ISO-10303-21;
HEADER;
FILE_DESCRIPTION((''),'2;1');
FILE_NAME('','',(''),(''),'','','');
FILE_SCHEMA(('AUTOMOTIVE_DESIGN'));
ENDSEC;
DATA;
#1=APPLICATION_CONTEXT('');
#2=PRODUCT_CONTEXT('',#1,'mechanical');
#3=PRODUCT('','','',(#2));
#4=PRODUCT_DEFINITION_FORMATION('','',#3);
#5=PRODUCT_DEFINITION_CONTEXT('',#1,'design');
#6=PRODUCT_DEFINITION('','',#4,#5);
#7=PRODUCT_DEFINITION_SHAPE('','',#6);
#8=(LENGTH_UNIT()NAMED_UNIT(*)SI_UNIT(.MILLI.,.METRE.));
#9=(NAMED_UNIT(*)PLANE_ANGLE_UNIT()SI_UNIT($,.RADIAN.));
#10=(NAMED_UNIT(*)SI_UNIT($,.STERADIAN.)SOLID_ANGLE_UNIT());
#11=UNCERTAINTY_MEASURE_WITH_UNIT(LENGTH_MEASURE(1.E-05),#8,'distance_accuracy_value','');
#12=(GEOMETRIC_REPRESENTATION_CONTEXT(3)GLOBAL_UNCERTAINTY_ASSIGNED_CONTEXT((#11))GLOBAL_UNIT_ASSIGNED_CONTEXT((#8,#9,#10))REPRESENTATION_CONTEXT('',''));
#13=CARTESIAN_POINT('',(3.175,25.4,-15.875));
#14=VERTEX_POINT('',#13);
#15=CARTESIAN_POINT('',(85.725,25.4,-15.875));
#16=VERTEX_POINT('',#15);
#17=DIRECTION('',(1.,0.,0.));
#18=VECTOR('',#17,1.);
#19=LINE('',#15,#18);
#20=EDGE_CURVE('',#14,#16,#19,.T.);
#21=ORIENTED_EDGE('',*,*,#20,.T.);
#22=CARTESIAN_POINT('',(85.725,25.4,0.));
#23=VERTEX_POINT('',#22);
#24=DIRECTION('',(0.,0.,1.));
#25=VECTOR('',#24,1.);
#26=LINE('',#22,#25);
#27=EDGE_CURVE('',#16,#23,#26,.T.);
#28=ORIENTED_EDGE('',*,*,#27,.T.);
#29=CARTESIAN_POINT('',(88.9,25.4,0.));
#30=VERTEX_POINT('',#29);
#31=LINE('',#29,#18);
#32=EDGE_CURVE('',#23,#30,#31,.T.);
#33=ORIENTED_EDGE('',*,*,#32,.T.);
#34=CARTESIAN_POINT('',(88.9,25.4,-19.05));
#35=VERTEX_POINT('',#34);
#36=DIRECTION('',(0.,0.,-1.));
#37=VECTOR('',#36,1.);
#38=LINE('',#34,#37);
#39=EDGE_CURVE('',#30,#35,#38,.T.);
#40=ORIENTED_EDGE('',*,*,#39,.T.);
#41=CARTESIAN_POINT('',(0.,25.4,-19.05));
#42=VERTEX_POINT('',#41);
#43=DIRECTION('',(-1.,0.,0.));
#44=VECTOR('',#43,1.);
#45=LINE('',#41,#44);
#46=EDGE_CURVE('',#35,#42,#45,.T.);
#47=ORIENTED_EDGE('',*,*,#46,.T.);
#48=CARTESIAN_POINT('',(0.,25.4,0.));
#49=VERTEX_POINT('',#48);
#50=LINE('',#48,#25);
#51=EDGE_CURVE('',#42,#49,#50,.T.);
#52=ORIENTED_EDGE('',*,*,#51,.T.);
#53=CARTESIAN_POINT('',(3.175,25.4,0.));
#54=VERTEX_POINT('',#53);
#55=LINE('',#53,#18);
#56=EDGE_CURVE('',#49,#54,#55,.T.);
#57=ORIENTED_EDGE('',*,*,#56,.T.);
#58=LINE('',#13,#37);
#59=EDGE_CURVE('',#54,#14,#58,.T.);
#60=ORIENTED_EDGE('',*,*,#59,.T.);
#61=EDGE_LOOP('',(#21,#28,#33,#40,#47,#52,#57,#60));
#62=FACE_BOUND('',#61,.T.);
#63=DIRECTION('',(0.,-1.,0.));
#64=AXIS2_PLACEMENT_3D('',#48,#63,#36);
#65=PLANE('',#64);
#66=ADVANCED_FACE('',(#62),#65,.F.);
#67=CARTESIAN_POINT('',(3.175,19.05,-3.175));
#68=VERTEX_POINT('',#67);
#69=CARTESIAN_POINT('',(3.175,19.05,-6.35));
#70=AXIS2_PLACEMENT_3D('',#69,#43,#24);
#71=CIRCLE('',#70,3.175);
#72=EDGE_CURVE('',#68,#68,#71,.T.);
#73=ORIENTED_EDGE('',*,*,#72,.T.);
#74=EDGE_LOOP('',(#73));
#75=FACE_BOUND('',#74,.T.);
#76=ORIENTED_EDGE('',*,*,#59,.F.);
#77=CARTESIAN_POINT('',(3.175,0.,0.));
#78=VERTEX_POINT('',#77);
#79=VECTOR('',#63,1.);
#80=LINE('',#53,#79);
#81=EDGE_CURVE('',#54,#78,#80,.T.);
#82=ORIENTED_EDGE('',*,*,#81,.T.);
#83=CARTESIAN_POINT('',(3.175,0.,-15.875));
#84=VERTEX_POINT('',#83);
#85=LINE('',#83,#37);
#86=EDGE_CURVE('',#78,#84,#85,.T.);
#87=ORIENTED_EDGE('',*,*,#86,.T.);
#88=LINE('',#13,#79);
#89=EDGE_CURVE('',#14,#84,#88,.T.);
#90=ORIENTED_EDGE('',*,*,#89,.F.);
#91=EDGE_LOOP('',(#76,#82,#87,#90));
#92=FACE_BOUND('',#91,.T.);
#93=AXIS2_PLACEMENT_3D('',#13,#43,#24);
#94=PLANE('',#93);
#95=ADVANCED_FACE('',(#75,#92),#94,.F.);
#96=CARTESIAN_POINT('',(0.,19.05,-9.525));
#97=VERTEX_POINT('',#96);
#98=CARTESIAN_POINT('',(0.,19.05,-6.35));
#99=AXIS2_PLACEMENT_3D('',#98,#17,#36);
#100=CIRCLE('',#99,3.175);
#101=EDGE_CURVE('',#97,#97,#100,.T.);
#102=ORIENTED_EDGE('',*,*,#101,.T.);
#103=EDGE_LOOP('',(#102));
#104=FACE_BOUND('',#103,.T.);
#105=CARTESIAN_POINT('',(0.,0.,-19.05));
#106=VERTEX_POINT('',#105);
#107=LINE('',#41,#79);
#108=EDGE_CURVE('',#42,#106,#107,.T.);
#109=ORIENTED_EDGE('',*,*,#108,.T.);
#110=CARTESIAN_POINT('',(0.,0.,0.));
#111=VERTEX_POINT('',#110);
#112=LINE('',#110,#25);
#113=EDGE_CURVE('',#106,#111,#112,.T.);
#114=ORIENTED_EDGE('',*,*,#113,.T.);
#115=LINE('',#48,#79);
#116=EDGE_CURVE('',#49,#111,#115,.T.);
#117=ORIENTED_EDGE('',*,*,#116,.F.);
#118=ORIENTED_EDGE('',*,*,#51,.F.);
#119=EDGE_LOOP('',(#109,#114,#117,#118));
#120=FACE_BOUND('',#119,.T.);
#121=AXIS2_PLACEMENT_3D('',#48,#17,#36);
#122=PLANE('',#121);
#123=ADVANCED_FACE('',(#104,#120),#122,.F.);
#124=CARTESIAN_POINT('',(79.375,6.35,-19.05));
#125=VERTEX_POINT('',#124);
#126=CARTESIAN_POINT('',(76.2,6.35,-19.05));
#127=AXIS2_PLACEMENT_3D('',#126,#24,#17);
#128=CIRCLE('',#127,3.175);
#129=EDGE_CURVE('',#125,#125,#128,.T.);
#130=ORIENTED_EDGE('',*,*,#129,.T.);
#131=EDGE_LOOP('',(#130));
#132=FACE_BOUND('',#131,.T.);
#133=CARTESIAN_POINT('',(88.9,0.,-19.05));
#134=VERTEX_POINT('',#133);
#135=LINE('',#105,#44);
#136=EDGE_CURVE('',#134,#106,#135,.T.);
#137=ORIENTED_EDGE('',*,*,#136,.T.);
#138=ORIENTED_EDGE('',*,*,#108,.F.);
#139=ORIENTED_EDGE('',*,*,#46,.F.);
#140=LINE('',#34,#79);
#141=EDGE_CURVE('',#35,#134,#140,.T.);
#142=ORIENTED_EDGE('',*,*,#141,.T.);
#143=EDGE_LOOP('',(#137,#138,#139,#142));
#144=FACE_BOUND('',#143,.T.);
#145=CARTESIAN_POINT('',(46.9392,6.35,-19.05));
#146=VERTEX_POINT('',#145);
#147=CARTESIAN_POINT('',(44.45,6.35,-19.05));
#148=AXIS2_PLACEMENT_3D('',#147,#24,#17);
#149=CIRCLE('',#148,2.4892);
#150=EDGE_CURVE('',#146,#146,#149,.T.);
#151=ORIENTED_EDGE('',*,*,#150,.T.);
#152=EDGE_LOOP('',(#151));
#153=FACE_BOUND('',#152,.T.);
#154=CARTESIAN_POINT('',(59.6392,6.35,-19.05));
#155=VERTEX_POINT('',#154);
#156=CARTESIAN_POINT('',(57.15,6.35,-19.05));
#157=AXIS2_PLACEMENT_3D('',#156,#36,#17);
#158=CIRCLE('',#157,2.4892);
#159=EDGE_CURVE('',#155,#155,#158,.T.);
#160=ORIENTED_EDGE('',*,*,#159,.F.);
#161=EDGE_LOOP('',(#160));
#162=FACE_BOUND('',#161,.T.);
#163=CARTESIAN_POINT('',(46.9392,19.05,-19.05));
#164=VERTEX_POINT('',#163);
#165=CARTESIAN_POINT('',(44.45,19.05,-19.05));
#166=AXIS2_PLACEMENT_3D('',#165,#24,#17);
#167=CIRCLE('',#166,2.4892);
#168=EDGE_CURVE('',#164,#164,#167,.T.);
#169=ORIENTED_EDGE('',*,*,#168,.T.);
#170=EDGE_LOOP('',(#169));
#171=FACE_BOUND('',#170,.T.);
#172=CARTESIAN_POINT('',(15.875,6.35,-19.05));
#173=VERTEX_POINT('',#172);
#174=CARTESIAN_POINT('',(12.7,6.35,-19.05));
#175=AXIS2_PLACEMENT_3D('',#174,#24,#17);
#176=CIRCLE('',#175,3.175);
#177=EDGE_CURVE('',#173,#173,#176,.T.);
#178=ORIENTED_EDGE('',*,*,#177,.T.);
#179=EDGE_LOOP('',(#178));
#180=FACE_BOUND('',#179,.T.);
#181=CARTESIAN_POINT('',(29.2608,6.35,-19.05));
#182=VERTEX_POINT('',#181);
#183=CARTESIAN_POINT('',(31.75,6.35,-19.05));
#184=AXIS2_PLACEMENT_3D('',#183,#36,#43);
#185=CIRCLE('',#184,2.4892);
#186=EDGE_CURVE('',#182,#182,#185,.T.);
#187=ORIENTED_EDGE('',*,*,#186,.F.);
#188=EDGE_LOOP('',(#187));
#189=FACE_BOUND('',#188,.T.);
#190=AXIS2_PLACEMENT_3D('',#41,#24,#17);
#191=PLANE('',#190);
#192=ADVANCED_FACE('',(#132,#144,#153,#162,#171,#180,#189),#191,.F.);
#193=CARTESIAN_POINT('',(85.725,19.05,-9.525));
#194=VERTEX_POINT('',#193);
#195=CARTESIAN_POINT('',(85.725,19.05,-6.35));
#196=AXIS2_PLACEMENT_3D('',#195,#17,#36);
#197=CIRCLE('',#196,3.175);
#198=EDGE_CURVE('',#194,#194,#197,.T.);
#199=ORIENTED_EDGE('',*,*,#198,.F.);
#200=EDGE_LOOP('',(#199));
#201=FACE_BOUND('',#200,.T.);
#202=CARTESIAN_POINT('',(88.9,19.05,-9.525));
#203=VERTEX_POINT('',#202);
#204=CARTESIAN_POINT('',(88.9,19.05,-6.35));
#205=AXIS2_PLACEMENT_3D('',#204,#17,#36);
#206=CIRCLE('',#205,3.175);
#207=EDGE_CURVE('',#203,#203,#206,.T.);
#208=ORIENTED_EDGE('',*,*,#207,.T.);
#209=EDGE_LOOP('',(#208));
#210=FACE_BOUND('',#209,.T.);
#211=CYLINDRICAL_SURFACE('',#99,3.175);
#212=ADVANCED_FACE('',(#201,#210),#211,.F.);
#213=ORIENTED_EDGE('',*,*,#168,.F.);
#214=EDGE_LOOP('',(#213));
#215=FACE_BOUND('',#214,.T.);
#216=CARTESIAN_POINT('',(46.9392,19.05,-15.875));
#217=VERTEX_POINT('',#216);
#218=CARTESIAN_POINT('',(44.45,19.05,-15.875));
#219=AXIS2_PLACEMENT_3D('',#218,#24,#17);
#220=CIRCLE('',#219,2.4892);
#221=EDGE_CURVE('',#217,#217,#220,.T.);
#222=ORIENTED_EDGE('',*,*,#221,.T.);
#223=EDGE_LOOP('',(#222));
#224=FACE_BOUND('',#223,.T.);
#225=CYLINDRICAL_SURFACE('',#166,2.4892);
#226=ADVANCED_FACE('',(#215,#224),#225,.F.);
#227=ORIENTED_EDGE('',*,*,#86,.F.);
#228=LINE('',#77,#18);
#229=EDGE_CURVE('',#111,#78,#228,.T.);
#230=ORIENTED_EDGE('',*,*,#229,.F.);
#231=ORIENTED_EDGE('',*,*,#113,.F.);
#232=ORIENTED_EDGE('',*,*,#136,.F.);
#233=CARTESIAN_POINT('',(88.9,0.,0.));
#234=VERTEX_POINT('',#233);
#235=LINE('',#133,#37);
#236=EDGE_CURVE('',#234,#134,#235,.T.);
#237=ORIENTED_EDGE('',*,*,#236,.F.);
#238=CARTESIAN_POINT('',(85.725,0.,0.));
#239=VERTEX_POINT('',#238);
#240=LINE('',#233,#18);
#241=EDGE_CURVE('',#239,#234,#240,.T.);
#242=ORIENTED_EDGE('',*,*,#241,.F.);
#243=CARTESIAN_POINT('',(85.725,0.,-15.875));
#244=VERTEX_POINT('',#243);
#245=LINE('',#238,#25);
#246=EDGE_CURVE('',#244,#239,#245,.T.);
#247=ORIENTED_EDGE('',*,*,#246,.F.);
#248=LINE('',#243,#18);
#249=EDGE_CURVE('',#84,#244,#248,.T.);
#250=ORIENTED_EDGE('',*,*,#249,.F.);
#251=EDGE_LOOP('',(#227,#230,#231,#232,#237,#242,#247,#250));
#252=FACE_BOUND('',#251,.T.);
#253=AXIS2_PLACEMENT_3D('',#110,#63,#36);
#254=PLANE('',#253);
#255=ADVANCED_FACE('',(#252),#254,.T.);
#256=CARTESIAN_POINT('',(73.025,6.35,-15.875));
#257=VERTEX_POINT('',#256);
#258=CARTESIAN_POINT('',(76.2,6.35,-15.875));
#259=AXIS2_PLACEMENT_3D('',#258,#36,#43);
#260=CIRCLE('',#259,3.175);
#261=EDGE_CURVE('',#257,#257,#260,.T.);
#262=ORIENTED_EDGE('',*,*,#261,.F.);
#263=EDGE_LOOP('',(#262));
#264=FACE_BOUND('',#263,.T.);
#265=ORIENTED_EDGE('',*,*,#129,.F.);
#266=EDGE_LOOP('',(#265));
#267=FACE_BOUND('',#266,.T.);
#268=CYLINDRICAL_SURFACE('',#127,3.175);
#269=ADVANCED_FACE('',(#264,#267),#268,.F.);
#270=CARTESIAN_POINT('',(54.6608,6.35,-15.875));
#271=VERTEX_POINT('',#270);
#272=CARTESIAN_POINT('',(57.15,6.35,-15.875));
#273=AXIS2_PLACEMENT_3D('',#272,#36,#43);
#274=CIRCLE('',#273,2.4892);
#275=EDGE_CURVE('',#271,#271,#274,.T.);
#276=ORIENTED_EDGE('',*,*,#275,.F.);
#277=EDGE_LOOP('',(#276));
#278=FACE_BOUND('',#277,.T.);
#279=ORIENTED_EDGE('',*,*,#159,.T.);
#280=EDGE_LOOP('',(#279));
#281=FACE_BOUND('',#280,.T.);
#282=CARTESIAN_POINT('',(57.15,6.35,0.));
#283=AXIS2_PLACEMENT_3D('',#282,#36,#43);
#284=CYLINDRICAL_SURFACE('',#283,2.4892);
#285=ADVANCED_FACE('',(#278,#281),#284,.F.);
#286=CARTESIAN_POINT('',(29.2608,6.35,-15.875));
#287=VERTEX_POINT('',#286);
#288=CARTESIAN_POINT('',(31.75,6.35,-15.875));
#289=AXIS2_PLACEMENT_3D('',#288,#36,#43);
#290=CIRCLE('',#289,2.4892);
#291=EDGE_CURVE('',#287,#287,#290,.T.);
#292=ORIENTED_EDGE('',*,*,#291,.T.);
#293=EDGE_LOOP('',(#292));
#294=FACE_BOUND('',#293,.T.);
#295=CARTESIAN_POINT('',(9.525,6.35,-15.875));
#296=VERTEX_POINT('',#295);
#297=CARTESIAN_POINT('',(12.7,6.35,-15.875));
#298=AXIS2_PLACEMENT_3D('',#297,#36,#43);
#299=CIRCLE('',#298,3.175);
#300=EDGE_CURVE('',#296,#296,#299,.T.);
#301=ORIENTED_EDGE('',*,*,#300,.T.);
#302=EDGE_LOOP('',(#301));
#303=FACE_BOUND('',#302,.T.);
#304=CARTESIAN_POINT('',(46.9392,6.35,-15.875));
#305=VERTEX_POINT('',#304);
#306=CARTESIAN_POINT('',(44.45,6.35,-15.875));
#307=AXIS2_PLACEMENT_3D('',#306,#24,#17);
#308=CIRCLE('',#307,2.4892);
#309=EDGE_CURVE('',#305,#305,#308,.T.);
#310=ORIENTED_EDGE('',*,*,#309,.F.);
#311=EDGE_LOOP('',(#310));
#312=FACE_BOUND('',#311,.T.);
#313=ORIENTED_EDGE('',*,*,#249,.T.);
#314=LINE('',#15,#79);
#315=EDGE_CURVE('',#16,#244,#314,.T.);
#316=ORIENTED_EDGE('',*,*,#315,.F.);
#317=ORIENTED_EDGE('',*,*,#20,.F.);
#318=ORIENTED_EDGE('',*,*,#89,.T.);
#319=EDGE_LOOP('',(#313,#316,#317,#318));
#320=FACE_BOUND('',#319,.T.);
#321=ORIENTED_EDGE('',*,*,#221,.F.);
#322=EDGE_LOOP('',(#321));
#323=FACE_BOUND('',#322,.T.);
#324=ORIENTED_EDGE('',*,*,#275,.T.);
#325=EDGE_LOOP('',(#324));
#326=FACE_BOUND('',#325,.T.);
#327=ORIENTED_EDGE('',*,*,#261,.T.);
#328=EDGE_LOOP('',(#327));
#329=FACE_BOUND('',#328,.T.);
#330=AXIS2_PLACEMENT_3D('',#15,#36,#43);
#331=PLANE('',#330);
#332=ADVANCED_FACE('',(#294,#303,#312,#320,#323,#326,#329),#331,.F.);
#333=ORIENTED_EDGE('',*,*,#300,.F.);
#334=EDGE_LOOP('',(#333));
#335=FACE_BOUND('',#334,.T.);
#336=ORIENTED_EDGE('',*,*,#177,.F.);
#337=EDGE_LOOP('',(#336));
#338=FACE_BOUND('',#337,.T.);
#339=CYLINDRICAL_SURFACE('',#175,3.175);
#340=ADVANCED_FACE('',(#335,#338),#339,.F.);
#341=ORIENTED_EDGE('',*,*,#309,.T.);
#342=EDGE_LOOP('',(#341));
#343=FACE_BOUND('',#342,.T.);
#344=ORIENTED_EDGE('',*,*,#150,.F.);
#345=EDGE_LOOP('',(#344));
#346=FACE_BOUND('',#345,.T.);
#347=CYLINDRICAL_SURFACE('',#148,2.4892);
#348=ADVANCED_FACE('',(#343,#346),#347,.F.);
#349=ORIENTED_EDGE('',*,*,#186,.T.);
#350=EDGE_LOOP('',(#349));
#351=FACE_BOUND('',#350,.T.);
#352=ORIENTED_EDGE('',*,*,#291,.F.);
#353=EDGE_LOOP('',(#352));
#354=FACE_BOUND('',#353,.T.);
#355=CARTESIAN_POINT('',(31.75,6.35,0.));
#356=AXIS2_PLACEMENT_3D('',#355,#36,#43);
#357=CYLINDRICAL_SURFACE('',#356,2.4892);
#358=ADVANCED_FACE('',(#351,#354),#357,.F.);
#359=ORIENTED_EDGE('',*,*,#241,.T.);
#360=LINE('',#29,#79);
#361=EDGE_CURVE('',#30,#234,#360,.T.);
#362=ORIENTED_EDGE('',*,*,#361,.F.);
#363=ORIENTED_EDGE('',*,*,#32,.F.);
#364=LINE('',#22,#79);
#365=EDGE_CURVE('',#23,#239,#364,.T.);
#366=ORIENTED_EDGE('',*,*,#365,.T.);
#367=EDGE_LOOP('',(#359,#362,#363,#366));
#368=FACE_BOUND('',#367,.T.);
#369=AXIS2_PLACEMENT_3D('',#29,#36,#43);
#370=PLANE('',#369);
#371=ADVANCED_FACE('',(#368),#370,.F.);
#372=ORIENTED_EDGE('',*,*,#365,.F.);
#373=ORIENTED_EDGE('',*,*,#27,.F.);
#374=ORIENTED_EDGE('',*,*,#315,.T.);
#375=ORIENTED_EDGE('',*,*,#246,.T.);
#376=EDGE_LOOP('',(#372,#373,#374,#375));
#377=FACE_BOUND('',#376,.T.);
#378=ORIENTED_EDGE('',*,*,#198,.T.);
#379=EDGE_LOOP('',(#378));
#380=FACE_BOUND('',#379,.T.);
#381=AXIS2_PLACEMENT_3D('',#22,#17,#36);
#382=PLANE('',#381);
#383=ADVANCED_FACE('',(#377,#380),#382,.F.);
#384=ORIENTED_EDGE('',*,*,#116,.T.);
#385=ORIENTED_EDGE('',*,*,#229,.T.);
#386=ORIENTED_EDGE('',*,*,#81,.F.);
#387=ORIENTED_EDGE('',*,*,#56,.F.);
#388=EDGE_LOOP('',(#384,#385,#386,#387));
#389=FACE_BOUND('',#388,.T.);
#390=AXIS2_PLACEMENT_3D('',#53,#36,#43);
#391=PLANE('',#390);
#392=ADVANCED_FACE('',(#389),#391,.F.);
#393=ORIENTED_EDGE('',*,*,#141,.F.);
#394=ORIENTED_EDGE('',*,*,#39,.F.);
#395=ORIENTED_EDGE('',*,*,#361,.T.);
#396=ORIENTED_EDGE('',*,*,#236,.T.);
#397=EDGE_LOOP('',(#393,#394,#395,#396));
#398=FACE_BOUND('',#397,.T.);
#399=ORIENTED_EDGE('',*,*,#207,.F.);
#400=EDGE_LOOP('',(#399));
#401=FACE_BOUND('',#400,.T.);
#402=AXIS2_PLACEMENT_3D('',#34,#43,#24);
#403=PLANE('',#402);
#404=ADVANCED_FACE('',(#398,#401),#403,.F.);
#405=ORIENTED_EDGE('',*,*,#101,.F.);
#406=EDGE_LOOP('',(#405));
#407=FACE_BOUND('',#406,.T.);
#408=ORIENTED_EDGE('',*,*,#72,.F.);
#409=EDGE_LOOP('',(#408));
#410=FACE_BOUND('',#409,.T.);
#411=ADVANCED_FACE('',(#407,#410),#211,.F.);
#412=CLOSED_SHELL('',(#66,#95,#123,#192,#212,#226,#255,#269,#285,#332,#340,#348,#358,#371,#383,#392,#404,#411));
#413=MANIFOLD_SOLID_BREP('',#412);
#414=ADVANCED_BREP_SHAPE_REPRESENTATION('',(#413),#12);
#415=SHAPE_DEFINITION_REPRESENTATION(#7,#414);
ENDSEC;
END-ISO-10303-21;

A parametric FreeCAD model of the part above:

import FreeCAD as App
import Part
import Sketcher
Q = App.Units.Quantity

doc = App.newDocument("Part")
body = doc.addObject("PartDesign::Body", "Body")

sketch1 = body.newObject("Sketcher::SketchObject", "Sketch")
sketch1.AttachmentSupport = (doc.getObject("XZ_Plane"), [""])
sketch1.MapMode = "FlatFace"
sketch1.addGeometry([
    Part.LineSegment(App.Vector(0, -19.05, 0), App.Vector(0, 0, 0)),
    Part.LineSegment(App.Vector(0, 0, 0), App.Vector(3.175, 0, 0)),
    Part.LineSegment(App.Vector(3.175, 0, 0), App.Vector(3.175, -15.875, 0)),
    Part.LineSegment(App.Vector(3.175, -15.875, 0), App.Vector(85.725, -15.875, 0)),
    Part.LineSegment(App.Vector(85.725, -15.875, 0), App.Vector(85.725, 0, 0)),
    Part.LineSegment(App.Vector(85.725, 0, 0), App.Vector(88.9, 0, 0)),
    Part.LineSegment(App.Vector(88.9, 0, 0), App.Vector(88.9, -19.05, 0)),
    Part.LineSegment(App.Vector(88.9, -19.05, 0), App.Vector(0, -19.05, 0)),
], False)
sketch1.addConstraint([
    Sketcher.Constraint("Coincident", 0, 2, 1, 1),
    Sketcher.Constraint("Coincident", 1, 2, 2, 1),
    Sketcher.Constraint("Coincident", 2, 2, 3, 1),
    Sketcher.Constraint("Coincident", 3, 2, 4, 1),
    Sketcher.Constraint("Coincident", 4, 2, 5, 1),
    Sketcher.Constraint("Coincident", 5, 2, 6, 1),
    Sketcher.Constraint("Coincident", 6, 2, 7, 1),
    Sketcher.Constraint("Coincident", 7, 2, 0, 1),
    Sketcher.Constraint("Vertical", 0),
    Sketcher.Constraint("Horizontal", 1),
    Sketcher.Constraint("Vertical", 2),
    Sketcher.Constraint("Horizontal", 3),
    Sketcher.Constraint("Vertical", 4),
    Sketcher.Constraint("Horizontal", 5),
    Sketcher.Constraint("Vertical", 6),
    Sketcher.Constraint("Horizontal", 7),
    Sketcher.Constraint("Coincident", 0, 2, -1, 1),
    Sketcher.Constraint("PointOnObject", 4, 2, -1),
    Sketcher.Constraint("Equal", 1, 5),
    Sketcher.Constraint("DistanceX", 7, 2, 7, 1, Q("3.5 in")),
    Sketcher.Constraint("DistanceX", 3, 1, 3, 2, Q("3.25 in")),
    Sketcher.Constraint("DistanceY", 0, 1, 0, 2, Q("0.75 in")),
    Sketcher.Constraint("DistanceY", 2, 2, 2, 1, Q("0.625 in")),
])
pad1 = body.newObject("PartDesign::Pad", "Pad")
pad1.Profile = sketch1
pad1.Length = Q("1 in")
pad1.Reversed = True

sketch2 = body.newObject("Sketcher::SketchObject", "Sketch001")
sketch2.AttachmentSupport = (doc.getObject("YZ_Plane"), [""])
sketch2.MapMode = "FlatFace"
sketch2.AttachmentOffset = App.Placement(App.Vector(0, 0, 3.5 * 25.4), App.Rotation())
sketch2.addGeometry(Part.Circle(App.Vector(19.05, -6.35, 0), App.Vector(0, 0, 1), 3.175), False)
sketch2.addConstraint([
    Sketcher.Constraint("Diameter", 0, Q("0.25 in")),
    Sketcher.Constraint("DistanceX", -1, 1, 0, 3, Q("0.75 in")),
    Sketcher.Constraint("DistanceY", 0, 3, -1, 1, Q("0.25 in")),
])
pocket1 = body.newObject("PartDesign::Pocket", "Pocket")
pocket1.Profile = sketch2
pocket1.Type = "ThroughAll"

sketch3 = body.newObject("Sketcher::SketchObject", "Sketch002")
sketch3.AttachmentSupport = (doc.getObject("XY_Plane"), [""])
sketch3.MapMode = "FlatFace"
sketch3.AttachmentOffset = App.Placement(App.Vector(0, 0, -0.625 * 25.4), App.Rotation())
sketch3.addGeometry([
    Part.Circle(App.Vector(12.7, 6.35, 0), App.Vector(0, 0, 1), 3.175),
    Part.Circle(App.Vector(76.2, 6.35, 0), App.Vector(0, 0, 1), 3.175),
], False)
sketch3.addConstraint([
    Sketcher.Constraint("Equal", 0, 1),
    Sketcher.Constraint("Horizontal", 0, 3, 1, 3),
    Sketcher.Constraint("Diameter", 0, Q("0.25 in")),
    Sketcher.Constraint("DistanceX", -1, 1, 1, 3, Q("3 in")),
    Sketcher.Constraint("DistanceX", -1, 1, 0, 3, Q("0.5 in")),
    Sketcher.Constraint("DistanceY", -1, 1, 0, 3, Q("0.25 in")),
])
pocket2 = body.newObject("PartDesign::Pocket", "Pocket001")
pocket2.Profile = sketch3
pocket2.Type = "ThroughAll"
pocket2.Midplane = True

sketch4 = body.newObject("Sketcher::SketchObject", "Sketch003")
sketch4.AttachmentSupport = (doc.getObject("XY_Plane"), [""])
sketch4.MapMode = "FlatFace"
sketch4.AttachmentOffset = App.Placement(App.Vector(0, 0, -0.625 * 25.4), App.Rotation())
sketch4.addGeometry([
    Part.Circle(App.Vector(44.45, 19.05, 0), App.Vector(0, 0, 1), 2.4892),
    Part.Circle(App.Vector(44.45, 6.35, 0), App.Vector(0, 0, 1), 2.4892),
], False)
sketch4.addConstraint([
    Sketcher.Constraint("Equal", 0, 1),
    Sketcher.Constraint("Vertical", 0, 3, 1, 3),
    Sketcher.Constraint("Diameter", 0, Q("0.196 in")),
    Sketcher.Constraint("DistanceY", 1, 3, 0, 3, Q("0.5 in")),
    Sketcher.Constraint("DistanceX", -1, 1, 0, 3, Q("1.75 in")),
    Sketcher.Constraint("DistanceY", -1, 1, 0, 3, Q("0.75 in")),
])
pocket3 = body.newObject("PartDesign::Pocket", "Pocket002")
pocket3.Profile = sketch4
pocket3.Type = "ThroughAll"

sketch5 = body.newObject("Sketcher::SketchObject", "Sketch004")
sketch5.AttachmentSupport = (doc.getObject("XY_Plane"), [""])
sketch5.MapMode = "FlatFace"
sketch5.AttachmentOffset = App.Placement(App.Vector(0, 0, -0.75 * 25.4), App.Rotation())
sketch5.addGeometry([
    Part.Circle(App.Vector(31.75, 6.35, 0), App.Vector(0, 0, 1), 2.4892),
    Part.Circle(App.Vector(57.15, 6.35, 0), App.Vector(0, 0, 1), 2.4892),
], False)
sketch5.addConstraint([
    Sketcher.Constraint("Equal", 0, 1),
    Sketcher.Constraint("Horizontal", 0, 3, 1, 3),
    Sketcher.Constraint("Diameter", 0, Q("0.196 in")),
    Sketcher.Constraint("DistanceX", 0, 3, 1, 3, Q("1 in")),
    Sketcher.Constraint("DistanceX", -1, 1, 0, 3, Q("1.25 in")),
    Sketcher.Constraint("DistanceY", -1, 1, 0, 3, Q("0.25 in")),
])
pocket4 = body.newObject("PartDesign::Pocket", "Pocket003")
pocket4.Profile = sketch5
pocket4.Type = "ThroughAll"
pocket4.Reversed = True

doc.recompute()
